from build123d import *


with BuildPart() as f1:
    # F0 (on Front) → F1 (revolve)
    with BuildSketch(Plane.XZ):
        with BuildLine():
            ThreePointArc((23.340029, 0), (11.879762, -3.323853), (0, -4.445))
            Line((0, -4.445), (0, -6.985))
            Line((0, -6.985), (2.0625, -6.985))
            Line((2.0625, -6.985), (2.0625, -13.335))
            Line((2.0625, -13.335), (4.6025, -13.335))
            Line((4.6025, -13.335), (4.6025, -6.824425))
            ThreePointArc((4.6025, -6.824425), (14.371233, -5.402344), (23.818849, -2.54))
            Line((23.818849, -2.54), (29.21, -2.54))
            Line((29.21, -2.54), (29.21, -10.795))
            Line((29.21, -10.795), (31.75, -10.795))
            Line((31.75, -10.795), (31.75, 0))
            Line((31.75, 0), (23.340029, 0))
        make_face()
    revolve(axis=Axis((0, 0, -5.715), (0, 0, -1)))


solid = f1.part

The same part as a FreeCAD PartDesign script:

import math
import FreeCAD as App
import Part
import Sketcher
Q = App.Units.Quantity

doc = App.newDocument("Part")
body = doc.addObject("PartDesign::Body", "Body")

sketch1 = body.newObject("Sketcher::SketchObject", "Sketch")
sketch1.AttachmentSupport = (doc.getObject("XZ_Plane"), [""])
sketch1.MapMode = "FlatFace"
sketch1.addGeometry(Part.ArcOfCircle(Part.Circle(App.Vector(0.000004, 59.054975, 0), App.Vector(0, 0, 1), 63.499975), math.radians(-90.000004), math.radians(-68.434811)), False)
sketch1.addGeometry(Part.LineSegment(App.Vector(0, -4.445, 0), App.Vector(0, -6.985, 0)), False)
sketch1.addGeometry(Part.LineSegment(App.Vector(0, -6.985, 0), App.Vector(2.0625, -6.985, 0)), False)
sketch1.addGeometry(Part.LineSegment(App.Vector(2.0625, -6.985, 0), App.Vector(2.0625, -13.335, 0)), False)
sketch1.addGeometry(Part.LineSegment(App.Vector(2.0625, -13.335, 0), App.Vector(4.6025, -13.335, 0)), False)
sketch1.addGeometry(Part.LineSegment(App.Vector(4.6025, -13.335, 0), App.Vector(4.6025, -6.824425, 0)), False)
sketch1.addGeometry(Part.ArcOfCircle(Part.Circle(App.Vector(-0.000014, 59.055056, 0), App.Vector(0, 0, 1), 66.040057), math.radians(-86.003659), math.radians(-68.85847)), False)
sketch1.addGeometry(Part.LineSegment(App.Vector(23.818849, -2.54, 0), App.Vector(29.21, -2.54, 0)), False)
sketch1.addGeometry(Part.LineSegment(App.Vector(29.21, -2.54, 0), App.Vector(29.21, -10.795, 0)), False)
sketch1.addGeometry(Part.LineSegment(App.Vector(29.21, -10.795, 0), App.Vector(31.75, -10.795, 0)), False)
sketch1.addGeometry(Part.LineSegment(App.Vector(31.75, -10.795, 0), App.Vector(31.75, 0, 0)), False)
sketch1.addGeometry(Part.LineSegment(App.Vector(31.75, 0, 0), App.Vector(23.340029, 0, 0)), False)
sketch1.addConstraint(Sketcher.Constraint("Coincident", 0, 1, 1, 1))
sketch1.addConstraint(Sketcher.Constraint("Coincident", 1, 2, 2, 1))
sketch1.addConstraint(Sketcher.Constraint("Coincident", 2, 2, 3, 1))
sketch1.addConstraint(Sketcher.Constraint("Coincident", 3, 2, 4, 1))
sketch1.addConstraint(Sketcher.Constraint("Coincident", 4, 2, 5, 1))
sketch1.addConstraint(Sketcher.Constraint("Coincident", 5, 2, 6, 1))
sketch1.addConstraint(Sketcher.Constraint("Coincident", 6, 2, 7, 1))
sketch1.addConstraint(Sketcher.Constraint("Coincident", 7, 2, 8, 1))
sketch1.addConstraint(Sketcher.Constraint("Coincident", 8, 2, 9, 1))
sketch1.addConstraint(Sketcher.Constraint("Coincident", 9, 2, 10, 1))
sketch1.addConstraint(Sketcher.Constraint("Coincident", 10, 2, 11, 1))
sketch1.addConstraint(Sketcher.Constraint("Coincident", 11, 2, 0, 2))
sketch1.addConstraint(Sketcher.Constraint("Vertical", 1))
sketch1.addConstraint(Sketcher.Constraint("Horizontal", 2))
sketch1.addConstraint(Sketcher.Constraint("Vertical", 3))
sketch1.addConstraint(Sketcher.Constraint("Horizontal", 4))
sketch1.addConstraint(Sketcher.Constraint("Vertical", 5))
sketch1.addConstraint(Sketcher.Constraint("Horizontal", 7))
sketch1.addConstraint(Sketcher.Constraint("Vertical", 8))
sketch1.addConstraint(Sketcher.Constraint("Horizontal", 9))
sketch1.addConstraint(Sketcher.Constraint("Vertical", 10))
sketch1.addConstraint(Sketcher.Constraint("Horizontal", 11))
sketch1.addConstraint(Sketcher.Constraint("PointOnObject", 0, 1, -2))
sketch1.addConstraint(Sketcher.Constraint("PointOnObject", 10, 2, -1))
sketch1.addConstraint(Sketcher.Constraint("Equal", 4, 9))
sketch1.addConstraint(Sketcher.Constraint("Equal", 9, 1))
sketch1.addConstraint(Sketcher.Constraint("DistanceX", 4, 1, 4, 2, Q("0.1 in")))
sketch1.addConstraint(Sketcher.Constraint("DistanceY", 3, 2, 3, 1, Q("0.25 in")))
sketch1.addConstraint(Sketcher.Constraint("DistanceY", 6, 2, -1, 1, Q("0.1 in")))
sketch1.addConstraint(Sketcher.Constraint("DistanceY", 4, 2, 8, 2, Q("0.1 in")))
sketch1.addConstraint(Sketcher.Constraint("DistanceY", 8, 2, 8, 1, Q("0.325 in")))
sketch1.addConstraint(Sketcher.Constraint("DistanceX", -1, 1, 7, 2, Q("1.15 in")))
sketch1.addConstraint(Sketcher.Constraint("DistanceX", 2, 1, 2, 2, Q("2.0625 mm")))
sketch1.addConstraint(Sketcher.Constraint("Radius", 0, Q("63.499975 mm")))
sketch1.addConstraint(Sketcher.Constraint("Radius", 6, Q("66.040057 mm")))
sketch1.addConstraint(Sketcher.Constraint("DistanceX", 7, 1, 7, 2, Q("5.391151 mm")))
sketch1.addConstraint(Sketcher.Constraint("DistanceX", 11, 2, 11, 1, Q("8.409971 mm")))
sketch1.addConstraint(Sketcher.Constraint("DistanceY", 5, 1, 5, 2, Q("6.510575 mm")))
revolution = body.newObject("PartDesign::Revolution", "Revolution")
revolution.Profile = sketch1
revolution.ReferenceAxis = (sketch1, ["V_Axis"])
revolution.Angle = 360

doc.recompute()
